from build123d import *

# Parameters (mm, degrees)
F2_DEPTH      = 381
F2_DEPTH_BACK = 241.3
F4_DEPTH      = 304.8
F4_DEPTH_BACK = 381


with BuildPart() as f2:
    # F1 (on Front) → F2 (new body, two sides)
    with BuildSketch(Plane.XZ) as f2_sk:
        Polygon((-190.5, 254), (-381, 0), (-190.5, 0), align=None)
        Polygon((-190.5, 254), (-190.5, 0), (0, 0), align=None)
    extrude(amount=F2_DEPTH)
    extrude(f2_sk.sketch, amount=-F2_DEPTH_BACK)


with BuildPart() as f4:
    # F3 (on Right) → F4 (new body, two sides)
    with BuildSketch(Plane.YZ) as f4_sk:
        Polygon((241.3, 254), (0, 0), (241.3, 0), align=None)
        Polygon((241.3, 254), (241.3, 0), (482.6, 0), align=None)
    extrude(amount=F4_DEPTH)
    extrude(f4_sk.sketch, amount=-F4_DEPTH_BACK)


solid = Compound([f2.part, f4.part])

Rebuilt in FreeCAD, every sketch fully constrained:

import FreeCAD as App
import Part
import Sketcher
Q = App.Units.Quantity


def add_polygon(sketch, points):
    """Adds a closed chain of lines whose ends are joined by coincident constraints."""
    first, n = sketch.GeometryCount, len(points)
    for a, b in zip(points, points[1:] + points[:1]):
        sketch.addGeometry(Part.LineSegment(App.Vector(*a, 0), App.Vector(*b, 0)), False)
    for i in range(n):
        sketch.addConstraint(Sketcher.Constraint("Coincident", first + i, 2, first + (i + 1) % n, 1))

doc = App.newDocument("Part")
body = doc.addObject("PartDesign::Body", "Body")

# Sketch on XZ plane
sketch1 = doc.addObject("Sketcher::SketchObject", "Sketch")
body.addObject(sketch1)
sketch1.AttachmentSupport = (doc.XZ_Plane, [""])
sketch1.MapMode = "FlatFace"
add_polygon(sketch1, [(-190, 254), (-381, 0), (0, 0)])  # lines 0-2
sketch1.addConstraint([
    Sketcher.Constraint("Horizontal", 1),
    Sketcher.Constraint("Coincident", 1, 2, -1, 1),
    Sketcher.Constraint("Equal", 0, 2),
    Sketcher.Constraint("DistanceX", 1, 1, 1, 2, Q("15 in")),
    Sketcher.Constraint("DistanceY", -1, 1, 2, 2, Q("10 in")),
])
pad1 = doc.addObject("PartDesign::Pad", "Pad")
body.addObject(pad1)
pad1.Profile = sketch1
pad1.Type = "TwoLengths"
pad1.Length = Q("15 in")
pad1.Length2 = Q("9.5 in")
body2 = doc.addObject("PartDesign::Body", "Body001")

# Sketch on YZ plane
sketch2 = doc.addObject("Sketcher::SketchObject", "Sketch001")
body2.addObject(sketch2)
sketch2.AttachmentSupport = (doc.getObject("YZ_Plane001"), [""])
sketch2.MapMode = "FlatFace"
add_polygon(sketch2, [(241, 254), (0, 0), (483, 0)])  # lines 0-2
sketch2.addConstraint([
    Sketcher.Constraint("Horizontal", 1),
    Sketcher.Constraint("Coincident", 0, 2, -1, 1),
    Sketcher.Constraint("Equal", 0, 2),
    Sketcher.Constraint("DistanceX", 1, 1, 1, 2, Q("19 in")),
    Sketcher.Constraint("DistanceY", -1, 1, 2, 2, Q("10 in")),
])
pad2 = doc.addObject("PartDesign::Pad", "Pad001")
body2.addObject(pad2)
pad2.Profile = sketch2
pad2.Type = "TwoLengths"
pad2.Length = Q("12 in")
pad2.Length2 = Q("15 in")

doc.recompute()
